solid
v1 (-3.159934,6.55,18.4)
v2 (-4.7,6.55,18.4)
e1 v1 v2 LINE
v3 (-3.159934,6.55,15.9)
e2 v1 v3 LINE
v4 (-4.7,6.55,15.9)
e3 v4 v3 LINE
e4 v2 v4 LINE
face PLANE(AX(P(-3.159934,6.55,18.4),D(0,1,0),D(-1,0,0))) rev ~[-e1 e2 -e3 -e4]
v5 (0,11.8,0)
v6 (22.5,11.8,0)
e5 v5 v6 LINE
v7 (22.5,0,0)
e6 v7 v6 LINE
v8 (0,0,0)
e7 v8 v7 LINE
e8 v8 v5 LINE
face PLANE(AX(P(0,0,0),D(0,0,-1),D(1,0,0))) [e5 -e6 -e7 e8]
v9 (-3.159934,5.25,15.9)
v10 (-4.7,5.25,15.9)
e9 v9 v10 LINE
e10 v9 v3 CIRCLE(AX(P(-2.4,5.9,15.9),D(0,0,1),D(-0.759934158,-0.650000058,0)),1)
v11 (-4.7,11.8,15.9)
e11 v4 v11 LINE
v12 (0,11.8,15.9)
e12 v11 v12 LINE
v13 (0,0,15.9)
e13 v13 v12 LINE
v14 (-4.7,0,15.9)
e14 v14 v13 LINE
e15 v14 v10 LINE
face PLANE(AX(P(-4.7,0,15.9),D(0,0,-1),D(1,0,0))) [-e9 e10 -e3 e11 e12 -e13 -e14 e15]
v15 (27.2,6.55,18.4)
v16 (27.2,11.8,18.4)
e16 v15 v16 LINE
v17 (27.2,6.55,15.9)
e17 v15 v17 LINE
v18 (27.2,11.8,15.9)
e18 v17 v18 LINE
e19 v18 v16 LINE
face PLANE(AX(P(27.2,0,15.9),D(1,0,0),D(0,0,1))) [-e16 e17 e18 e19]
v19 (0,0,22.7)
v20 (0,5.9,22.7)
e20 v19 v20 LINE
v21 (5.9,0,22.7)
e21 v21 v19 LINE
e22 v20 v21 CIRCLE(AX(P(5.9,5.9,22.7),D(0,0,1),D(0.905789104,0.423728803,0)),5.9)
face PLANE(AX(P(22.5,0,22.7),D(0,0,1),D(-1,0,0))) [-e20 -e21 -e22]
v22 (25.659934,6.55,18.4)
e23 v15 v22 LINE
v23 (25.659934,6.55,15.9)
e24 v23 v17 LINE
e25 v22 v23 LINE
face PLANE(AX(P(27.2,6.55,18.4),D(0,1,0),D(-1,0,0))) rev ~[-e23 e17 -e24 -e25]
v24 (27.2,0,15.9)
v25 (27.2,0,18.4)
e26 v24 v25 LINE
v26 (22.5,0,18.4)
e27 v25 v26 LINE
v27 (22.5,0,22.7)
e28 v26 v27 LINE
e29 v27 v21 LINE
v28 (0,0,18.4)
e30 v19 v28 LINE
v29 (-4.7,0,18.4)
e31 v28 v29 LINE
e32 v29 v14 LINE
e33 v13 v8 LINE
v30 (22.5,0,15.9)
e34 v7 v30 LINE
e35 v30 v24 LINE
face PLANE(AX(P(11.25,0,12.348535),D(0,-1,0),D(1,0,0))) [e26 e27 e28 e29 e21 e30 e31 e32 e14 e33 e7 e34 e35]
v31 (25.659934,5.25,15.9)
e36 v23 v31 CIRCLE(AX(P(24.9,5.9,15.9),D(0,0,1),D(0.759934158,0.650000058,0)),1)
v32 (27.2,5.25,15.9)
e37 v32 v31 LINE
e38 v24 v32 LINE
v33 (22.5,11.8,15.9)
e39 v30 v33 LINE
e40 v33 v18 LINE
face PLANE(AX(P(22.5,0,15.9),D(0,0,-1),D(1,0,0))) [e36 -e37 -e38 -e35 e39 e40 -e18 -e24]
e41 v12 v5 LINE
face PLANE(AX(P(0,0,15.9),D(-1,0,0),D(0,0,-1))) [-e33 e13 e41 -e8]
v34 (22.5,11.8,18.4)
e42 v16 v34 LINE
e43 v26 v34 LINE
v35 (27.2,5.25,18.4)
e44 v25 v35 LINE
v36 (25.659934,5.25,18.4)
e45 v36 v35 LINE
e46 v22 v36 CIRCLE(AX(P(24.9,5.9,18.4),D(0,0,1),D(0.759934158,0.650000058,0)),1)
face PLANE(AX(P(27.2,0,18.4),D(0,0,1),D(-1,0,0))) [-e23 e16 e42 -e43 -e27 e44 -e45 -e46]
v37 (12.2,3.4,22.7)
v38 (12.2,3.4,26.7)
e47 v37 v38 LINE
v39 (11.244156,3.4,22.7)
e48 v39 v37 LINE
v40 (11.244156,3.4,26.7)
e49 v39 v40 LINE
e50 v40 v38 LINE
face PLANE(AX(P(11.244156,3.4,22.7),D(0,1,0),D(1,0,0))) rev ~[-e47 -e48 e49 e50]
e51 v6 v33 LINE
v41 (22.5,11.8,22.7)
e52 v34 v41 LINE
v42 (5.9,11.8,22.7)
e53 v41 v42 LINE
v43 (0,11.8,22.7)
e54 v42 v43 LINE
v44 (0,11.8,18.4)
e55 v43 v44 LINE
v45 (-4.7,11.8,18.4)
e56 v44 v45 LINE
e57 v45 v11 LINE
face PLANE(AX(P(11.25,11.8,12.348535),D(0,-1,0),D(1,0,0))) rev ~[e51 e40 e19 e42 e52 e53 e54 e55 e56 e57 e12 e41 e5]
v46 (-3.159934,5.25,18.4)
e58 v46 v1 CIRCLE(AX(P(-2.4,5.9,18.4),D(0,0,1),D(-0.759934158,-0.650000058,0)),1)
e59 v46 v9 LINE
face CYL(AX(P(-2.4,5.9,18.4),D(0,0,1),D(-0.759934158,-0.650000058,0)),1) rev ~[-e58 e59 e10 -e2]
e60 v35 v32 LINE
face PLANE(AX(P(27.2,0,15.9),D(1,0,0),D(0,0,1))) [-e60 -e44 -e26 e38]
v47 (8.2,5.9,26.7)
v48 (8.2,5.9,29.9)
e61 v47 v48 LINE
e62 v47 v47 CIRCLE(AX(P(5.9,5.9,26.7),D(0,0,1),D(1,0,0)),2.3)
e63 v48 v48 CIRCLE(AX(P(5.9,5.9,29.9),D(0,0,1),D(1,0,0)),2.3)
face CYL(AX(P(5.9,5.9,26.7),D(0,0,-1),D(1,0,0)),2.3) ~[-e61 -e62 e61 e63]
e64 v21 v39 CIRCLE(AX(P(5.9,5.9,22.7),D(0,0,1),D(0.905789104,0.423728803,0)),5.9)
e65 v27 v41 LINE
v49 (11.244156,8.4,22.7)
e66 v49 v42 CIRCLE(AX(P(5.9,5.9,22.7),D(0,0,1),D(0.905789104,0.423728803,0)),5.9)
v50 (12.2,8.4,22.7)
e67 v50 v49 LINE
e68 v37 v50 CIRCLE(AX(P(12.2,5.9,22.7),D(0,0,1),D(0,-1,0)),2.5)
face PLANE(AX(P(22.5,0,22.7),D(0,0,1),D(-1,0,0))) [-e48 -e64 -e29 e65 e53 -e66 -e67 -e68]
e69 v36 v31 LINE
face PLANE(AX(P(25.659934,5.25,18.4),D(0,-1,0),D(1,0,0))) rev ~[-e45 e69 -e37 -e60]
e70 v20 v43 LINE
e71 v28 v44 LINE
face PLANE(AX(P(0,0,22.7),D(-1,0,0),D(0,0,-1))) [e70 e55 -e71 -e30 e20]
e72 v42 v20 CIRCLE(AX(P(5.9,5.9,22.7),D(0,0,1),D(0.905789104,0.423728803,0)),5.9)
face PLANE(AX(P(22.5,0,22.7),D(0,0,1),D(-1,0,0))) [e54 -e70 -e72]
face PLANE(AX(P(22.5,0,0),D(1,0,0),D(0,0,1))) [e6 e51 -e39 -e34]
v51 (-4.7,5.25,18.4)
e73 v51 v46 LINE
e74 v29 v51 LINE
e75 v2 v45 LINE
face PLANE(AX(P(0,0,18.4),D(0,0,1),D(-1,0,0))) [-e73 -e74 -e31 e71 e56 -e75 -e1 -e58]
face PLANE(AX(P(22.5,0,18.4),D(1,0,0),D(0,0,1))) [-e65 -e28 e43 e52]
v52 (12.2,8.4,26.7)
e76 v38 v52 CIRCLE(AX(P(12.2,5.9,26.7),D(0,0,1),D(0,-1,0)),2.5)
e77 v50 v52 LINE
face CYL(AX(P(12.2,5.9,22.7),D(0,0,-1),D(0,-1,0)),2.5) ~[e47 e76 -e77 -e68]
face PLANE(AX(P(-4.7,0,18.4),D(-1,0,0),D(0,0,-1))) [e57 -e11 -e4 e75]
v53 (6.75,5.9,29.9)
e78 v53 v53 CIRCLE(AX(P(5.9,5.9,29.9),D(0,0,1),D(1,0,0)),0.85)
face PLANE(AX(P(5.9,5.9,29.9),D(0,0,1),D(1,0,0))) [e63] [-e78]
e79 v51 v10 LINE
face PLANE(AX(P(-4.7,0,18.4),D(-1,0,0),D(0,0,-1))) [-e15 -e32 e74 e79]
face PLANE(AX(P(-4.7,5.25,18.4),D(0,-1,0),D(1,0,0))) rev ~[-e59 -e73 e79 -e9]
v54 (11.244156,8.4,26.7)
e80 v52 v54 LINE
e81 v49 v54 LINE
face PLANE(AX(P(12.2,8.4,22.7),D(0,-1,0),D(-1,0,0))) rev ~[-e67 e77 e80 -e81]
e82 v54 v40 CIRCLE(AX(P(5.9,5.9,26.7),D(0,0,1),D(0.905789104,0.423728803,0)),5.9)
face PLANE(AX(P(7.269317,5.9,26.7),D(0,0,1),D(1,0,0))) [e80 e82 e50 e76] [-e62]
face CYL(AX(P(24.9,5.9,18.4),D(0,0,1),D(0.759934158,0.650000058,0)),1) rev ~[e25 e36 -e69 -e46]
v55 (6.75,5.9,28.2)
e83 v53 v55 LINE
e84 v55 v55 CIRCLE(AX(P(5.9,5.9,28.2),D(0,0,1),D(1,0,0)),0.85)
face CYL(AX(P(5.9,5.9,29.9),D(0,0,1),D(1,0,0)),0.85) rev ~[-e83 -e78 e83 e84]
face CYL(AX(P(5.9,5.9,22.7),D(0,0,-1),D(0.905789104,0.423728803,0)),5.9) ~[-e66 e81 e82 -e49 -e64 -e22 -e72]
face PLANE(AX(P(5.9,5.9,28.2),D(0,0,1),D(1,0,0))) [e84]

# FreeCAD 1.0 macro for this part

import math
import FreeCAD as App
import Part
import Sketcher
from FreeCAD import Vector
Q = App.Units.Quantity

doc = App.newDocument("Part")
params = doc.addObject("Spreadsheet::Sheet", "Params")
for row, (alias, value) in enumerate([
    ("sketch1_width", "22.5 mm"),
    ("sketch1_width2", "4.7 mm"),
    ("sketch1_height", "15.9 mm"),
    ("sketch1_height2", "2.5 mm"),
    ("sketch1_height3", "4.3 mm"),
    ("pad1_length", "11.8 mm"),
    ("sketch2_radius", "5.9 mm"),
    ("sketch2_radius2", "2.5 mm"),
    ("pad2_length", "4 mm"),
    ("sketch3_radius", "1 mm"),
    ("sketch3_height", "1.3 mm"),
    ("pocket1_length", "25 mm"),
    ("sketch4_radius", "1 mm"),
    ("sketch4_height", "1.3 mm"),
    ("pocket2_length", "25 mm"),
    ("sketch5_diameter", "4.6 mm"),
    ("pad3_length", "3.2 mm"),
    ("sketch6_diameter", "1.7 mm"),
    ("pocket3_length", "1.7 mm"),
], start=1):
    params.set(f"A{row}", alias)
    params.set(f"B{row}", "=" + value)
    params.setAlias(f"B{row}", alias)

body = doc.addObject("PartDesign::Body", "Body")

# Sketch on XZ plane
sketch1 = body.newObject("Sketcher::SketchObject", "Sketch")
sketch1.AttachmentSupport = (doc.getObject("XZ_Plane"), [""])
sketch1.MapMode = "FlatFace"
sketch1.addGeometry(Part.LineSegment(Vector(0, 15.9, 0), Vector(0, 0, 0)), False)
sketch1.addGeometry(Part.LineSegment(Vector(0, 0, 0), Vector(22.5, 0, 0)), False)
sketch1.addGeometry(Part.LineSegment(Vector(22.5, 0, 0), Vector(22.5, 15.9, 0)), False)
sketch1.addGeometry(Part.LineSegment(Vector(22.5, 15.9, 0), Vector(27.2, 15.9, 0)), False)
sketch1.addGeometry(Part.LineSegment(Vector(27.2, 15.9, 0), Vector(27.2, 18.4, 0)), False)
sketch1.addGeometry(Part.LineSegment(Vector(27.2, 18.4, 0), Vector(22.5, 18.4, 0)), False)
sketch1.addGeometry(Part.LineSegment(Vector(22.5, 18.4, 0), Vector(22.5, 22.7, 0)), False)
sketch1.addGeometry(Part.LineSegment(Vector(22.5, 22.7, 0), Vector(0, 22.7, 0)), False)
sketch1.addGeometry(Part.LineSegment(Vector(0, 22.7, 0), Vector(0, 18.4, 0)), False)
sketch1.addGeometry(Part.LineSegment(Vector(0, 18.4, 0), Vector(-4.7, 18.4, 0)), False)
sketch1.addGeometry(Part.LineSegment(Vector(-4.7, 18.4, 0), Vector(-4.7, 15.9, 0)), False)
sketch1.addGeometry(Part.LineSegment(Vector(-4.7, 15.9, 0), Vector(0, 15.9, 0)), False)
sketch1.addConstraint(Sketcher.Constraint("Coincident", 0, 2, 1, 1))
sketch1.addConstraint(Sketcher.Constraint("Coincident", 1, 2, 2, 1))
sketch1.addConstraint(Sketcher.Constraint("Coincident", 2, 2, 3, 1))
sketch1.addConstraint(Sketcher.Constraint("Coincident", 3, 2, 4, 1))
sketch1.addConstraint(Sketcher.Constraint("Coincident", 4, 2, 5, 1))
sketch1.addConstraint(Sketcher.Constraint("Coincident", 5, 2, 6, 1))
sketch1.addConstraint(Sketcher.Constraint("Coincident", 6, 2, 7, 1))
sketch1.addConstraint(Sketcher.Constraint("Coincident", 7, 2, 8, 1))
sketch1.addConstraint(Sketcher.Constraint("Coincident", 8, 2, 9, 1))
sketch1.addConstraint(Sketcher.Constraint("Coincident", 9, 2, 10, 1))
sketch1.addConstraint(Sketcher.Constraint("Coincident", 10, 2, 11, 1))
sketch1.addConstraint(Sketcher.Constraint("Coincident", 11, 2, 0, 1))
sketch1.addConstraint(Sketcher.Constraint("Vertical", 0))
sketch1.addConstraint(Sketcher.Constraint("Horizontal", 1))
sketch1.addConstraint(Sketcher.Constraint("Vertical", 2))
sketch1.addConstraint(Sketcher.Constraint("Horizontal", 3))
sketch1.addConstraint(Sketcher.Constraint("Vertical", 4))
sketch1.addConstraint(Sketcher.Constraint("Horizontal", 5))
sketch1.addConstraint(Sketcher.Constraint("Vertical", 6))
sketch1.addConstraint(Sketcher.Constraint("Horizontal", 7))
sketch1.addConstraint(Sketcher.Constraint("Vertical", 8))
sketch1.addConstraint(Sketcher.Constraint("Horizontal", 9))
sketch1.addConstraint(Sketcher.Constraint("Vertical", 10))
sketch1.addConstraint(Sketcher.Constraint("Horizontal", 11))
sketch1.addConstraint(Sketcher.Constraint("Coincident", 0, 2, -1, 1))
sketch1.addConstraint(Sketcher.Constraint("PointOnObject", 7, 2, -2))
sketch1.addConstraint(Sketcher.Constraint("Horizontal", 5, 2, 8, 2))
sketch1.addConstraint(Sketcher.Constraint("Horizontal", 3, 2, 10, 2))
sketch1.addConstraint(Sketcher.Constraint("Vertical", 2, 2, 5, 2))
sketch1.addConstraint(Sketcher.Constraint("Equal", 5, 9))
sketch1.addConstraint(Sketcher.Constraint("DistanceX", 1, 1, 1, 2, Q("22.5 mm")))
sketch1.addConstraint(Sketcher.Constraint("DistanceX", 3, 1, 3, 2, Q("4.7 mm")))
sketch1.addConstraint(Sketcher.Constraint("DistanceY", 0, 2, 0, 1, Q("15.9 mm")))
sketch1.addConstraint(Sketcher.Constraint("DistanceY", 4, 1, 4, 2, Q("2.5 mm")))
sketch1.addConstraint(Sketcher.Constraint("DistanceY", 6, 1, 6, 2, Q("4.3 mm")))
sketch1.setExpression("Constraints[30]", "Params.sketch1_width")
sketch1.setExpression("Constraints[31]", "Params.sketch1_width2")
sketch1.setExpression("Constraints[32]", "Params.sketch1_height")
sketch1.setExpression("Constraints[33]", "Params.sketch1_height2")
sketch1.setExpression("Constraints[34]", "Params.sketch1_height3")
pad1 = body.newObject("PartDesign::Pad", "Pad")
pad1.Profile = sketch1
pad1.setExpression("Length", "Params.pad1_length")
pad1.Reversed = True

# Sketch on XY plane
sketch2 = body.newObject("Sketcher::SketchObject", "Sketch001")
sketch2.AttachmentSupport = (doc.getObject("XY_Plane"), [""])
sketch2.MapMode = "FlatFace"
sketch2.AttachmentOffset = App.Placement(Vector(0, 0, 22.7), App.Rotation())
sketch2.addGeometry(Part.LineSegment(Vector(12.2, 8.4, 0), Vector(11.2, 8.4, 0)), False)
sketch2.addGeometry(Part.ArcOfCircle(Part.Circle(Vector(5.9, 5.9, 0), Vector(0, 0, 1), 5.9), math.radians(25), math.radians(335)), False)
sketch2.addGeometry(Part.LineSegment(Vector(11.2, 3.4, 0), Vector(12.2, 3.4, 0)), False)
sketch2.addGeometry(Part.ArcOfCircle(Part.Circle(Vector(12.2, 5.9, 0), Vector(0, 0, 1), 2.5), math.radians(-90), math.radians(90)), False)
sketch2.addConstraint(Sketcher.Constraint("Coincident", 0, 2, 1, 1))
sketch2.addConstraint(Sketcher.Constraint("Coincident", 1, 2, 2, 1))
sketch2.addConstraint(Sketcher.Constraint("Tangent", 2, 2, 3, 1))
sketch2.addConstraint(Sketcher.Constraint("Tangent", 3, 2, 0, 1))
sketch2.addConstraint(Sketcher.Constraint("Horizontal", 0))
sketch2.addConstraint(Sketcher.Constraint("Horizontal", 2))
sketch2.addConstraint(Sketcher.Constraint("Horizontal", 1, 3, 3, 3))
sketch2.addConstraint(Sketcher.Constraint("Radius", 1, Q("5.9 mm")))
sketch2.addConstraint(Sketcher.Constraint("Radius", 3, Q("2.5 mm")))
sketch2.addConstraint(Sketcher.Constraint("DistanceX", -1, 1, 1, 3, Q("5.9 mm")))
sketch2.addConstraint(Sketcher.Constraint("DistanceY", -1, 1, 1, 3, Q("5.9 mm")))
sketch2.addConstraint(Sketcher.Constraint("DistanceX", -1, 1, 3, 3, Q("12.2 mm")))
sketch2.setExpression("Constraints[7]", "Params.sketch2_radius")
sketch2.setExpression("Constraints[8]", "Params.sketch2_radius2")
pad2 = body.newObject("PartDesign::Pad", "Pad001")
pad2.Profile = sketch2
pad2.setExpression("Length", "Params.pad2_length")

# Sketch on XY plane
sketch3 = body.newObject("Sketcher::SketchObject", "Sketch002")
sketch3.AttachmentSupport = (doc.getObject("XY_Plane"), [""])
sketch3.MapMode = "FlatFace"
sketch3.AttachmentOffset = App.Placement(Vector(0, 0, 18.4), App.Rotation())
sketch3.addGeometry(Part.LineSegment(Vector(27.2, 5.2, 0), Vector(27.2, 6.5, 0)), False)
sketch3.addGeometry(Part.LineSegment(Vector(27.2, 6.5, 0), Vector(25.7, 6.5, 0)), False)
sketch3.addGeometry(Part.ArcOfCircle(Part.Circle(Vector(24.9, 5.9, 0), Vector(0, 0, 1), 1), math.radians(41), math.radians(319)), False)
sketch3.addGeometry(Part.LineSegment(Vector(25.7, 5.2, 0), Vector(27.2, 5.2, 0)), False)
sketch3.addConstraint(Sketcher.Constraint("Coincident", 0, 2, 1, 1))
sketch3.addConstraint(Sketcher.Constraint("Coincident", 1, 2, 2, 1))
sketch3.addConstraint(Sketcher.Constraint("Coincident", 2, 2, 3, 1))
sketch3.addConstraint(Sketcher.Constraint("Coincident", 3, 2, 0, 1))
sketch3.addConstraint(Sketcher.Constraint("Vertical", 0))
sketch3.addConstraint(Sketcher.Constraint("Horizontal", 1))
sketch3.addConstraint(Sketcher.Constraint("Horizontal", 3))
sketch3.addConstraint(Sketcher.Constraint("Vertical", 1, 2, 2, 2))
sketch3.addConstraint(Sketcher.Constraint("Radius", 2, Q("1 mm")))
sketch3.addConstraint(Sketcher.Constraint("DistanceY", 0, 1, 0, 2, Q("1.3 mm")))
sketch3.addConstraint(Sketcher.Constraint("DistanceX", -1, 1, 2, 3, Q("24.9 mm")))
sketch3.addConstraint(Sketcher.Constraint("DistanceY", -1, 1, 2, 3, Q("5.9 mm")))
sketch3.addConstraint(Sketcher.Constraint("DistanceX", -1, 1, 0, 2, Q("27.2 mm")))
sketch3.setExpression("Constraints[8]", "Params.sketch3_radius")
sketch3.setExpression("Constraints[9]", "Params.sketch3_height")
pocket1 = body.newObject("PartDesign::Pocket", "Pocket")
pocket1.Profile = sketch3
pocket1.setExpression("Length", "Params.pocket1_length")

# Sketch on XY plane
sketch4 = body.newObject("Sketcher::SketchObject", "Sketch003")
sketch4.AttachmentSupport = (doc.getObject("XY_Plane"), [""])
sketch4.MapMode = "FlatFace"
sketch4.AttachmentOffset = App.Placement(Vector(0, 0, 18.4), App.Rotation())
sketch4.addGeometry(Part.LineSegment(Vector(-3.2, 6.5, 0), Vector(-4.7, 6.5, 0)), False)
sketch4.addGeometry(Part.LineSegment(Vector(-4.7, 6.5, 0), Vector(-4.7, 5.2, 0)), False)
sketch4.addGeometry(Part.LineSegment(Vector(-4.7, 5.2, 0), Vector(-3.2, 5.2, 0)), False)
sketch4.addGeometry(Part.ArcOfCircle(Part.Circle(Vector(-2.4, 5.9, 0), Vector(0, 0, 1), 1), math.radians(-139), math.radians(139)), False)
sketch4.addConstraint(Sketcher.Constraint("Coincident", 0, 2, 1, 1))
sketch4.addConstraint(Sketcher.Constraint("Coincident", 1, 2, 2, 1))
sketch4.addConstraint(Sketcher.Constraint("Coincident", 2, 2, 3, 1))
sketch4.addConstraint(Sketcher.Constraint("Coincident", 3, 2, 0, 1))
sketch4.addConstraint(Sketcher.Constraint("Horizontal", 0))
sketch4.addConstraint(Sketcher.Constraint("Vertical", 1))
sketch4.addConstraint(Sketcher.Constraint("Horizontal", 2))
sketch4.addConstraint(Sketcher.Constraint("Vertical", 2, 2, 3, 2))
sketch4.addConstraint(Sketcher.Constraint("Radius", 3, Q("1 mm")))
sketch4.addConstraint(Sketcher.Constraint("DistanceY", 1, 2, 1, 1, Q("1.3 mm")))
sketch4.addConstraint(Sketcher.Constraint("DistanceX", 3, 3, -1, 1, Q("2.4 mm")))
sketch4.addConstraint(Sketcher.Constraint("DistanceY", -1, 1, 3, 3, Q("5.9 mm")))
sketch4.addConstraint(Sketcher.Constraint("DistanceX", 0, 2, -1, 1, Q("4.7 mm")))
sketch4.setExpression("Constraints[8]", "Params.sketch4_radius")
sketch4.setExpression("Constraints[9]", "Params.sketch4_height")
pocket2 = body.newObject("PartDesign::Pocket", "Pocket001")
pocket2.Profile = sketch4
pocket2.setExpression("Length", "Params.pocket2_length")

# Sketch on XY plane
sketch5 = body.newObject("Sketcher::SketchObject", "Sketch004")
sketch5.AttachmentSupport = (doc.getObject("XY_Plane"), [""])
sketch5.MapMode = "FlatFace"
sketch5.AttachmentOffset = App.Placement(Vector(0, 0, 26.7), App.Rotation())
sketch5.addGeometry(Part.Circle(Vector(5.9, 5.9, 0), Vector(0, 0, 1), 2.3), False)
sketch5.addConstraint(Sketcher.Constraint("Diameter", 0, Q("4.6 mm")))
sketch5.addConstraint(Sketcher.Constraint("DistanceX", -1, 1, 0, 3, Q("5.9 mm")))
sketch5.addConstraint(Sketcher.Constraint("DistanceY", -1, 1, 0, 3, Q("5.9 mm")))
sketch5.setExpression("Constraints[0]", "Params.sketch5_diameter")
pad3 = body.newObject("PartDesign::Pad", "Pad002")
pad3.Profile = sketch5
pad3.setExpression("Length", "Params.pad3_length")

# Sketch on XY plane
sketch6 = body.newObject("Sketcher::SketchObject", "Sketch005")
sketch6.AttachmentSupport = (doc.getObject("XY_Plane"), [""])
sketch6.MapMode = "FlatFace"
sketch6.AttachmentOffset = App.Placement(Vector(0, 0, 29.9), App.Rotation())
sketch6.addGeometry(Part.Circle(Vector(5.9, 5.9, 0), Vector(0, 0, 1), 0.8), False)
sketch6.addConstraint(Sketcher.Constraint("Diameter", 0, Q("1.7 mm")))
sketch6.addConstraint(Sketcher.Constraint("DistanceX", -1, 1, 0, 3, Q("5.9 mm")))
sketch6.addConstraint(Sketcher.Constraint("DistanceY", -1, 1, 0, 3, Q("5.9 mm")))
sketch6.setExpression("Constraints[0]", "Params.sketch6_diameter")
pocket3 = body.newObject("PartDesign::Pocket", "Pocket002")
pocket3.Profile = sketch6
pocket3.setExpression("Length", "Params.pocket3_length")

doc.recompute()
